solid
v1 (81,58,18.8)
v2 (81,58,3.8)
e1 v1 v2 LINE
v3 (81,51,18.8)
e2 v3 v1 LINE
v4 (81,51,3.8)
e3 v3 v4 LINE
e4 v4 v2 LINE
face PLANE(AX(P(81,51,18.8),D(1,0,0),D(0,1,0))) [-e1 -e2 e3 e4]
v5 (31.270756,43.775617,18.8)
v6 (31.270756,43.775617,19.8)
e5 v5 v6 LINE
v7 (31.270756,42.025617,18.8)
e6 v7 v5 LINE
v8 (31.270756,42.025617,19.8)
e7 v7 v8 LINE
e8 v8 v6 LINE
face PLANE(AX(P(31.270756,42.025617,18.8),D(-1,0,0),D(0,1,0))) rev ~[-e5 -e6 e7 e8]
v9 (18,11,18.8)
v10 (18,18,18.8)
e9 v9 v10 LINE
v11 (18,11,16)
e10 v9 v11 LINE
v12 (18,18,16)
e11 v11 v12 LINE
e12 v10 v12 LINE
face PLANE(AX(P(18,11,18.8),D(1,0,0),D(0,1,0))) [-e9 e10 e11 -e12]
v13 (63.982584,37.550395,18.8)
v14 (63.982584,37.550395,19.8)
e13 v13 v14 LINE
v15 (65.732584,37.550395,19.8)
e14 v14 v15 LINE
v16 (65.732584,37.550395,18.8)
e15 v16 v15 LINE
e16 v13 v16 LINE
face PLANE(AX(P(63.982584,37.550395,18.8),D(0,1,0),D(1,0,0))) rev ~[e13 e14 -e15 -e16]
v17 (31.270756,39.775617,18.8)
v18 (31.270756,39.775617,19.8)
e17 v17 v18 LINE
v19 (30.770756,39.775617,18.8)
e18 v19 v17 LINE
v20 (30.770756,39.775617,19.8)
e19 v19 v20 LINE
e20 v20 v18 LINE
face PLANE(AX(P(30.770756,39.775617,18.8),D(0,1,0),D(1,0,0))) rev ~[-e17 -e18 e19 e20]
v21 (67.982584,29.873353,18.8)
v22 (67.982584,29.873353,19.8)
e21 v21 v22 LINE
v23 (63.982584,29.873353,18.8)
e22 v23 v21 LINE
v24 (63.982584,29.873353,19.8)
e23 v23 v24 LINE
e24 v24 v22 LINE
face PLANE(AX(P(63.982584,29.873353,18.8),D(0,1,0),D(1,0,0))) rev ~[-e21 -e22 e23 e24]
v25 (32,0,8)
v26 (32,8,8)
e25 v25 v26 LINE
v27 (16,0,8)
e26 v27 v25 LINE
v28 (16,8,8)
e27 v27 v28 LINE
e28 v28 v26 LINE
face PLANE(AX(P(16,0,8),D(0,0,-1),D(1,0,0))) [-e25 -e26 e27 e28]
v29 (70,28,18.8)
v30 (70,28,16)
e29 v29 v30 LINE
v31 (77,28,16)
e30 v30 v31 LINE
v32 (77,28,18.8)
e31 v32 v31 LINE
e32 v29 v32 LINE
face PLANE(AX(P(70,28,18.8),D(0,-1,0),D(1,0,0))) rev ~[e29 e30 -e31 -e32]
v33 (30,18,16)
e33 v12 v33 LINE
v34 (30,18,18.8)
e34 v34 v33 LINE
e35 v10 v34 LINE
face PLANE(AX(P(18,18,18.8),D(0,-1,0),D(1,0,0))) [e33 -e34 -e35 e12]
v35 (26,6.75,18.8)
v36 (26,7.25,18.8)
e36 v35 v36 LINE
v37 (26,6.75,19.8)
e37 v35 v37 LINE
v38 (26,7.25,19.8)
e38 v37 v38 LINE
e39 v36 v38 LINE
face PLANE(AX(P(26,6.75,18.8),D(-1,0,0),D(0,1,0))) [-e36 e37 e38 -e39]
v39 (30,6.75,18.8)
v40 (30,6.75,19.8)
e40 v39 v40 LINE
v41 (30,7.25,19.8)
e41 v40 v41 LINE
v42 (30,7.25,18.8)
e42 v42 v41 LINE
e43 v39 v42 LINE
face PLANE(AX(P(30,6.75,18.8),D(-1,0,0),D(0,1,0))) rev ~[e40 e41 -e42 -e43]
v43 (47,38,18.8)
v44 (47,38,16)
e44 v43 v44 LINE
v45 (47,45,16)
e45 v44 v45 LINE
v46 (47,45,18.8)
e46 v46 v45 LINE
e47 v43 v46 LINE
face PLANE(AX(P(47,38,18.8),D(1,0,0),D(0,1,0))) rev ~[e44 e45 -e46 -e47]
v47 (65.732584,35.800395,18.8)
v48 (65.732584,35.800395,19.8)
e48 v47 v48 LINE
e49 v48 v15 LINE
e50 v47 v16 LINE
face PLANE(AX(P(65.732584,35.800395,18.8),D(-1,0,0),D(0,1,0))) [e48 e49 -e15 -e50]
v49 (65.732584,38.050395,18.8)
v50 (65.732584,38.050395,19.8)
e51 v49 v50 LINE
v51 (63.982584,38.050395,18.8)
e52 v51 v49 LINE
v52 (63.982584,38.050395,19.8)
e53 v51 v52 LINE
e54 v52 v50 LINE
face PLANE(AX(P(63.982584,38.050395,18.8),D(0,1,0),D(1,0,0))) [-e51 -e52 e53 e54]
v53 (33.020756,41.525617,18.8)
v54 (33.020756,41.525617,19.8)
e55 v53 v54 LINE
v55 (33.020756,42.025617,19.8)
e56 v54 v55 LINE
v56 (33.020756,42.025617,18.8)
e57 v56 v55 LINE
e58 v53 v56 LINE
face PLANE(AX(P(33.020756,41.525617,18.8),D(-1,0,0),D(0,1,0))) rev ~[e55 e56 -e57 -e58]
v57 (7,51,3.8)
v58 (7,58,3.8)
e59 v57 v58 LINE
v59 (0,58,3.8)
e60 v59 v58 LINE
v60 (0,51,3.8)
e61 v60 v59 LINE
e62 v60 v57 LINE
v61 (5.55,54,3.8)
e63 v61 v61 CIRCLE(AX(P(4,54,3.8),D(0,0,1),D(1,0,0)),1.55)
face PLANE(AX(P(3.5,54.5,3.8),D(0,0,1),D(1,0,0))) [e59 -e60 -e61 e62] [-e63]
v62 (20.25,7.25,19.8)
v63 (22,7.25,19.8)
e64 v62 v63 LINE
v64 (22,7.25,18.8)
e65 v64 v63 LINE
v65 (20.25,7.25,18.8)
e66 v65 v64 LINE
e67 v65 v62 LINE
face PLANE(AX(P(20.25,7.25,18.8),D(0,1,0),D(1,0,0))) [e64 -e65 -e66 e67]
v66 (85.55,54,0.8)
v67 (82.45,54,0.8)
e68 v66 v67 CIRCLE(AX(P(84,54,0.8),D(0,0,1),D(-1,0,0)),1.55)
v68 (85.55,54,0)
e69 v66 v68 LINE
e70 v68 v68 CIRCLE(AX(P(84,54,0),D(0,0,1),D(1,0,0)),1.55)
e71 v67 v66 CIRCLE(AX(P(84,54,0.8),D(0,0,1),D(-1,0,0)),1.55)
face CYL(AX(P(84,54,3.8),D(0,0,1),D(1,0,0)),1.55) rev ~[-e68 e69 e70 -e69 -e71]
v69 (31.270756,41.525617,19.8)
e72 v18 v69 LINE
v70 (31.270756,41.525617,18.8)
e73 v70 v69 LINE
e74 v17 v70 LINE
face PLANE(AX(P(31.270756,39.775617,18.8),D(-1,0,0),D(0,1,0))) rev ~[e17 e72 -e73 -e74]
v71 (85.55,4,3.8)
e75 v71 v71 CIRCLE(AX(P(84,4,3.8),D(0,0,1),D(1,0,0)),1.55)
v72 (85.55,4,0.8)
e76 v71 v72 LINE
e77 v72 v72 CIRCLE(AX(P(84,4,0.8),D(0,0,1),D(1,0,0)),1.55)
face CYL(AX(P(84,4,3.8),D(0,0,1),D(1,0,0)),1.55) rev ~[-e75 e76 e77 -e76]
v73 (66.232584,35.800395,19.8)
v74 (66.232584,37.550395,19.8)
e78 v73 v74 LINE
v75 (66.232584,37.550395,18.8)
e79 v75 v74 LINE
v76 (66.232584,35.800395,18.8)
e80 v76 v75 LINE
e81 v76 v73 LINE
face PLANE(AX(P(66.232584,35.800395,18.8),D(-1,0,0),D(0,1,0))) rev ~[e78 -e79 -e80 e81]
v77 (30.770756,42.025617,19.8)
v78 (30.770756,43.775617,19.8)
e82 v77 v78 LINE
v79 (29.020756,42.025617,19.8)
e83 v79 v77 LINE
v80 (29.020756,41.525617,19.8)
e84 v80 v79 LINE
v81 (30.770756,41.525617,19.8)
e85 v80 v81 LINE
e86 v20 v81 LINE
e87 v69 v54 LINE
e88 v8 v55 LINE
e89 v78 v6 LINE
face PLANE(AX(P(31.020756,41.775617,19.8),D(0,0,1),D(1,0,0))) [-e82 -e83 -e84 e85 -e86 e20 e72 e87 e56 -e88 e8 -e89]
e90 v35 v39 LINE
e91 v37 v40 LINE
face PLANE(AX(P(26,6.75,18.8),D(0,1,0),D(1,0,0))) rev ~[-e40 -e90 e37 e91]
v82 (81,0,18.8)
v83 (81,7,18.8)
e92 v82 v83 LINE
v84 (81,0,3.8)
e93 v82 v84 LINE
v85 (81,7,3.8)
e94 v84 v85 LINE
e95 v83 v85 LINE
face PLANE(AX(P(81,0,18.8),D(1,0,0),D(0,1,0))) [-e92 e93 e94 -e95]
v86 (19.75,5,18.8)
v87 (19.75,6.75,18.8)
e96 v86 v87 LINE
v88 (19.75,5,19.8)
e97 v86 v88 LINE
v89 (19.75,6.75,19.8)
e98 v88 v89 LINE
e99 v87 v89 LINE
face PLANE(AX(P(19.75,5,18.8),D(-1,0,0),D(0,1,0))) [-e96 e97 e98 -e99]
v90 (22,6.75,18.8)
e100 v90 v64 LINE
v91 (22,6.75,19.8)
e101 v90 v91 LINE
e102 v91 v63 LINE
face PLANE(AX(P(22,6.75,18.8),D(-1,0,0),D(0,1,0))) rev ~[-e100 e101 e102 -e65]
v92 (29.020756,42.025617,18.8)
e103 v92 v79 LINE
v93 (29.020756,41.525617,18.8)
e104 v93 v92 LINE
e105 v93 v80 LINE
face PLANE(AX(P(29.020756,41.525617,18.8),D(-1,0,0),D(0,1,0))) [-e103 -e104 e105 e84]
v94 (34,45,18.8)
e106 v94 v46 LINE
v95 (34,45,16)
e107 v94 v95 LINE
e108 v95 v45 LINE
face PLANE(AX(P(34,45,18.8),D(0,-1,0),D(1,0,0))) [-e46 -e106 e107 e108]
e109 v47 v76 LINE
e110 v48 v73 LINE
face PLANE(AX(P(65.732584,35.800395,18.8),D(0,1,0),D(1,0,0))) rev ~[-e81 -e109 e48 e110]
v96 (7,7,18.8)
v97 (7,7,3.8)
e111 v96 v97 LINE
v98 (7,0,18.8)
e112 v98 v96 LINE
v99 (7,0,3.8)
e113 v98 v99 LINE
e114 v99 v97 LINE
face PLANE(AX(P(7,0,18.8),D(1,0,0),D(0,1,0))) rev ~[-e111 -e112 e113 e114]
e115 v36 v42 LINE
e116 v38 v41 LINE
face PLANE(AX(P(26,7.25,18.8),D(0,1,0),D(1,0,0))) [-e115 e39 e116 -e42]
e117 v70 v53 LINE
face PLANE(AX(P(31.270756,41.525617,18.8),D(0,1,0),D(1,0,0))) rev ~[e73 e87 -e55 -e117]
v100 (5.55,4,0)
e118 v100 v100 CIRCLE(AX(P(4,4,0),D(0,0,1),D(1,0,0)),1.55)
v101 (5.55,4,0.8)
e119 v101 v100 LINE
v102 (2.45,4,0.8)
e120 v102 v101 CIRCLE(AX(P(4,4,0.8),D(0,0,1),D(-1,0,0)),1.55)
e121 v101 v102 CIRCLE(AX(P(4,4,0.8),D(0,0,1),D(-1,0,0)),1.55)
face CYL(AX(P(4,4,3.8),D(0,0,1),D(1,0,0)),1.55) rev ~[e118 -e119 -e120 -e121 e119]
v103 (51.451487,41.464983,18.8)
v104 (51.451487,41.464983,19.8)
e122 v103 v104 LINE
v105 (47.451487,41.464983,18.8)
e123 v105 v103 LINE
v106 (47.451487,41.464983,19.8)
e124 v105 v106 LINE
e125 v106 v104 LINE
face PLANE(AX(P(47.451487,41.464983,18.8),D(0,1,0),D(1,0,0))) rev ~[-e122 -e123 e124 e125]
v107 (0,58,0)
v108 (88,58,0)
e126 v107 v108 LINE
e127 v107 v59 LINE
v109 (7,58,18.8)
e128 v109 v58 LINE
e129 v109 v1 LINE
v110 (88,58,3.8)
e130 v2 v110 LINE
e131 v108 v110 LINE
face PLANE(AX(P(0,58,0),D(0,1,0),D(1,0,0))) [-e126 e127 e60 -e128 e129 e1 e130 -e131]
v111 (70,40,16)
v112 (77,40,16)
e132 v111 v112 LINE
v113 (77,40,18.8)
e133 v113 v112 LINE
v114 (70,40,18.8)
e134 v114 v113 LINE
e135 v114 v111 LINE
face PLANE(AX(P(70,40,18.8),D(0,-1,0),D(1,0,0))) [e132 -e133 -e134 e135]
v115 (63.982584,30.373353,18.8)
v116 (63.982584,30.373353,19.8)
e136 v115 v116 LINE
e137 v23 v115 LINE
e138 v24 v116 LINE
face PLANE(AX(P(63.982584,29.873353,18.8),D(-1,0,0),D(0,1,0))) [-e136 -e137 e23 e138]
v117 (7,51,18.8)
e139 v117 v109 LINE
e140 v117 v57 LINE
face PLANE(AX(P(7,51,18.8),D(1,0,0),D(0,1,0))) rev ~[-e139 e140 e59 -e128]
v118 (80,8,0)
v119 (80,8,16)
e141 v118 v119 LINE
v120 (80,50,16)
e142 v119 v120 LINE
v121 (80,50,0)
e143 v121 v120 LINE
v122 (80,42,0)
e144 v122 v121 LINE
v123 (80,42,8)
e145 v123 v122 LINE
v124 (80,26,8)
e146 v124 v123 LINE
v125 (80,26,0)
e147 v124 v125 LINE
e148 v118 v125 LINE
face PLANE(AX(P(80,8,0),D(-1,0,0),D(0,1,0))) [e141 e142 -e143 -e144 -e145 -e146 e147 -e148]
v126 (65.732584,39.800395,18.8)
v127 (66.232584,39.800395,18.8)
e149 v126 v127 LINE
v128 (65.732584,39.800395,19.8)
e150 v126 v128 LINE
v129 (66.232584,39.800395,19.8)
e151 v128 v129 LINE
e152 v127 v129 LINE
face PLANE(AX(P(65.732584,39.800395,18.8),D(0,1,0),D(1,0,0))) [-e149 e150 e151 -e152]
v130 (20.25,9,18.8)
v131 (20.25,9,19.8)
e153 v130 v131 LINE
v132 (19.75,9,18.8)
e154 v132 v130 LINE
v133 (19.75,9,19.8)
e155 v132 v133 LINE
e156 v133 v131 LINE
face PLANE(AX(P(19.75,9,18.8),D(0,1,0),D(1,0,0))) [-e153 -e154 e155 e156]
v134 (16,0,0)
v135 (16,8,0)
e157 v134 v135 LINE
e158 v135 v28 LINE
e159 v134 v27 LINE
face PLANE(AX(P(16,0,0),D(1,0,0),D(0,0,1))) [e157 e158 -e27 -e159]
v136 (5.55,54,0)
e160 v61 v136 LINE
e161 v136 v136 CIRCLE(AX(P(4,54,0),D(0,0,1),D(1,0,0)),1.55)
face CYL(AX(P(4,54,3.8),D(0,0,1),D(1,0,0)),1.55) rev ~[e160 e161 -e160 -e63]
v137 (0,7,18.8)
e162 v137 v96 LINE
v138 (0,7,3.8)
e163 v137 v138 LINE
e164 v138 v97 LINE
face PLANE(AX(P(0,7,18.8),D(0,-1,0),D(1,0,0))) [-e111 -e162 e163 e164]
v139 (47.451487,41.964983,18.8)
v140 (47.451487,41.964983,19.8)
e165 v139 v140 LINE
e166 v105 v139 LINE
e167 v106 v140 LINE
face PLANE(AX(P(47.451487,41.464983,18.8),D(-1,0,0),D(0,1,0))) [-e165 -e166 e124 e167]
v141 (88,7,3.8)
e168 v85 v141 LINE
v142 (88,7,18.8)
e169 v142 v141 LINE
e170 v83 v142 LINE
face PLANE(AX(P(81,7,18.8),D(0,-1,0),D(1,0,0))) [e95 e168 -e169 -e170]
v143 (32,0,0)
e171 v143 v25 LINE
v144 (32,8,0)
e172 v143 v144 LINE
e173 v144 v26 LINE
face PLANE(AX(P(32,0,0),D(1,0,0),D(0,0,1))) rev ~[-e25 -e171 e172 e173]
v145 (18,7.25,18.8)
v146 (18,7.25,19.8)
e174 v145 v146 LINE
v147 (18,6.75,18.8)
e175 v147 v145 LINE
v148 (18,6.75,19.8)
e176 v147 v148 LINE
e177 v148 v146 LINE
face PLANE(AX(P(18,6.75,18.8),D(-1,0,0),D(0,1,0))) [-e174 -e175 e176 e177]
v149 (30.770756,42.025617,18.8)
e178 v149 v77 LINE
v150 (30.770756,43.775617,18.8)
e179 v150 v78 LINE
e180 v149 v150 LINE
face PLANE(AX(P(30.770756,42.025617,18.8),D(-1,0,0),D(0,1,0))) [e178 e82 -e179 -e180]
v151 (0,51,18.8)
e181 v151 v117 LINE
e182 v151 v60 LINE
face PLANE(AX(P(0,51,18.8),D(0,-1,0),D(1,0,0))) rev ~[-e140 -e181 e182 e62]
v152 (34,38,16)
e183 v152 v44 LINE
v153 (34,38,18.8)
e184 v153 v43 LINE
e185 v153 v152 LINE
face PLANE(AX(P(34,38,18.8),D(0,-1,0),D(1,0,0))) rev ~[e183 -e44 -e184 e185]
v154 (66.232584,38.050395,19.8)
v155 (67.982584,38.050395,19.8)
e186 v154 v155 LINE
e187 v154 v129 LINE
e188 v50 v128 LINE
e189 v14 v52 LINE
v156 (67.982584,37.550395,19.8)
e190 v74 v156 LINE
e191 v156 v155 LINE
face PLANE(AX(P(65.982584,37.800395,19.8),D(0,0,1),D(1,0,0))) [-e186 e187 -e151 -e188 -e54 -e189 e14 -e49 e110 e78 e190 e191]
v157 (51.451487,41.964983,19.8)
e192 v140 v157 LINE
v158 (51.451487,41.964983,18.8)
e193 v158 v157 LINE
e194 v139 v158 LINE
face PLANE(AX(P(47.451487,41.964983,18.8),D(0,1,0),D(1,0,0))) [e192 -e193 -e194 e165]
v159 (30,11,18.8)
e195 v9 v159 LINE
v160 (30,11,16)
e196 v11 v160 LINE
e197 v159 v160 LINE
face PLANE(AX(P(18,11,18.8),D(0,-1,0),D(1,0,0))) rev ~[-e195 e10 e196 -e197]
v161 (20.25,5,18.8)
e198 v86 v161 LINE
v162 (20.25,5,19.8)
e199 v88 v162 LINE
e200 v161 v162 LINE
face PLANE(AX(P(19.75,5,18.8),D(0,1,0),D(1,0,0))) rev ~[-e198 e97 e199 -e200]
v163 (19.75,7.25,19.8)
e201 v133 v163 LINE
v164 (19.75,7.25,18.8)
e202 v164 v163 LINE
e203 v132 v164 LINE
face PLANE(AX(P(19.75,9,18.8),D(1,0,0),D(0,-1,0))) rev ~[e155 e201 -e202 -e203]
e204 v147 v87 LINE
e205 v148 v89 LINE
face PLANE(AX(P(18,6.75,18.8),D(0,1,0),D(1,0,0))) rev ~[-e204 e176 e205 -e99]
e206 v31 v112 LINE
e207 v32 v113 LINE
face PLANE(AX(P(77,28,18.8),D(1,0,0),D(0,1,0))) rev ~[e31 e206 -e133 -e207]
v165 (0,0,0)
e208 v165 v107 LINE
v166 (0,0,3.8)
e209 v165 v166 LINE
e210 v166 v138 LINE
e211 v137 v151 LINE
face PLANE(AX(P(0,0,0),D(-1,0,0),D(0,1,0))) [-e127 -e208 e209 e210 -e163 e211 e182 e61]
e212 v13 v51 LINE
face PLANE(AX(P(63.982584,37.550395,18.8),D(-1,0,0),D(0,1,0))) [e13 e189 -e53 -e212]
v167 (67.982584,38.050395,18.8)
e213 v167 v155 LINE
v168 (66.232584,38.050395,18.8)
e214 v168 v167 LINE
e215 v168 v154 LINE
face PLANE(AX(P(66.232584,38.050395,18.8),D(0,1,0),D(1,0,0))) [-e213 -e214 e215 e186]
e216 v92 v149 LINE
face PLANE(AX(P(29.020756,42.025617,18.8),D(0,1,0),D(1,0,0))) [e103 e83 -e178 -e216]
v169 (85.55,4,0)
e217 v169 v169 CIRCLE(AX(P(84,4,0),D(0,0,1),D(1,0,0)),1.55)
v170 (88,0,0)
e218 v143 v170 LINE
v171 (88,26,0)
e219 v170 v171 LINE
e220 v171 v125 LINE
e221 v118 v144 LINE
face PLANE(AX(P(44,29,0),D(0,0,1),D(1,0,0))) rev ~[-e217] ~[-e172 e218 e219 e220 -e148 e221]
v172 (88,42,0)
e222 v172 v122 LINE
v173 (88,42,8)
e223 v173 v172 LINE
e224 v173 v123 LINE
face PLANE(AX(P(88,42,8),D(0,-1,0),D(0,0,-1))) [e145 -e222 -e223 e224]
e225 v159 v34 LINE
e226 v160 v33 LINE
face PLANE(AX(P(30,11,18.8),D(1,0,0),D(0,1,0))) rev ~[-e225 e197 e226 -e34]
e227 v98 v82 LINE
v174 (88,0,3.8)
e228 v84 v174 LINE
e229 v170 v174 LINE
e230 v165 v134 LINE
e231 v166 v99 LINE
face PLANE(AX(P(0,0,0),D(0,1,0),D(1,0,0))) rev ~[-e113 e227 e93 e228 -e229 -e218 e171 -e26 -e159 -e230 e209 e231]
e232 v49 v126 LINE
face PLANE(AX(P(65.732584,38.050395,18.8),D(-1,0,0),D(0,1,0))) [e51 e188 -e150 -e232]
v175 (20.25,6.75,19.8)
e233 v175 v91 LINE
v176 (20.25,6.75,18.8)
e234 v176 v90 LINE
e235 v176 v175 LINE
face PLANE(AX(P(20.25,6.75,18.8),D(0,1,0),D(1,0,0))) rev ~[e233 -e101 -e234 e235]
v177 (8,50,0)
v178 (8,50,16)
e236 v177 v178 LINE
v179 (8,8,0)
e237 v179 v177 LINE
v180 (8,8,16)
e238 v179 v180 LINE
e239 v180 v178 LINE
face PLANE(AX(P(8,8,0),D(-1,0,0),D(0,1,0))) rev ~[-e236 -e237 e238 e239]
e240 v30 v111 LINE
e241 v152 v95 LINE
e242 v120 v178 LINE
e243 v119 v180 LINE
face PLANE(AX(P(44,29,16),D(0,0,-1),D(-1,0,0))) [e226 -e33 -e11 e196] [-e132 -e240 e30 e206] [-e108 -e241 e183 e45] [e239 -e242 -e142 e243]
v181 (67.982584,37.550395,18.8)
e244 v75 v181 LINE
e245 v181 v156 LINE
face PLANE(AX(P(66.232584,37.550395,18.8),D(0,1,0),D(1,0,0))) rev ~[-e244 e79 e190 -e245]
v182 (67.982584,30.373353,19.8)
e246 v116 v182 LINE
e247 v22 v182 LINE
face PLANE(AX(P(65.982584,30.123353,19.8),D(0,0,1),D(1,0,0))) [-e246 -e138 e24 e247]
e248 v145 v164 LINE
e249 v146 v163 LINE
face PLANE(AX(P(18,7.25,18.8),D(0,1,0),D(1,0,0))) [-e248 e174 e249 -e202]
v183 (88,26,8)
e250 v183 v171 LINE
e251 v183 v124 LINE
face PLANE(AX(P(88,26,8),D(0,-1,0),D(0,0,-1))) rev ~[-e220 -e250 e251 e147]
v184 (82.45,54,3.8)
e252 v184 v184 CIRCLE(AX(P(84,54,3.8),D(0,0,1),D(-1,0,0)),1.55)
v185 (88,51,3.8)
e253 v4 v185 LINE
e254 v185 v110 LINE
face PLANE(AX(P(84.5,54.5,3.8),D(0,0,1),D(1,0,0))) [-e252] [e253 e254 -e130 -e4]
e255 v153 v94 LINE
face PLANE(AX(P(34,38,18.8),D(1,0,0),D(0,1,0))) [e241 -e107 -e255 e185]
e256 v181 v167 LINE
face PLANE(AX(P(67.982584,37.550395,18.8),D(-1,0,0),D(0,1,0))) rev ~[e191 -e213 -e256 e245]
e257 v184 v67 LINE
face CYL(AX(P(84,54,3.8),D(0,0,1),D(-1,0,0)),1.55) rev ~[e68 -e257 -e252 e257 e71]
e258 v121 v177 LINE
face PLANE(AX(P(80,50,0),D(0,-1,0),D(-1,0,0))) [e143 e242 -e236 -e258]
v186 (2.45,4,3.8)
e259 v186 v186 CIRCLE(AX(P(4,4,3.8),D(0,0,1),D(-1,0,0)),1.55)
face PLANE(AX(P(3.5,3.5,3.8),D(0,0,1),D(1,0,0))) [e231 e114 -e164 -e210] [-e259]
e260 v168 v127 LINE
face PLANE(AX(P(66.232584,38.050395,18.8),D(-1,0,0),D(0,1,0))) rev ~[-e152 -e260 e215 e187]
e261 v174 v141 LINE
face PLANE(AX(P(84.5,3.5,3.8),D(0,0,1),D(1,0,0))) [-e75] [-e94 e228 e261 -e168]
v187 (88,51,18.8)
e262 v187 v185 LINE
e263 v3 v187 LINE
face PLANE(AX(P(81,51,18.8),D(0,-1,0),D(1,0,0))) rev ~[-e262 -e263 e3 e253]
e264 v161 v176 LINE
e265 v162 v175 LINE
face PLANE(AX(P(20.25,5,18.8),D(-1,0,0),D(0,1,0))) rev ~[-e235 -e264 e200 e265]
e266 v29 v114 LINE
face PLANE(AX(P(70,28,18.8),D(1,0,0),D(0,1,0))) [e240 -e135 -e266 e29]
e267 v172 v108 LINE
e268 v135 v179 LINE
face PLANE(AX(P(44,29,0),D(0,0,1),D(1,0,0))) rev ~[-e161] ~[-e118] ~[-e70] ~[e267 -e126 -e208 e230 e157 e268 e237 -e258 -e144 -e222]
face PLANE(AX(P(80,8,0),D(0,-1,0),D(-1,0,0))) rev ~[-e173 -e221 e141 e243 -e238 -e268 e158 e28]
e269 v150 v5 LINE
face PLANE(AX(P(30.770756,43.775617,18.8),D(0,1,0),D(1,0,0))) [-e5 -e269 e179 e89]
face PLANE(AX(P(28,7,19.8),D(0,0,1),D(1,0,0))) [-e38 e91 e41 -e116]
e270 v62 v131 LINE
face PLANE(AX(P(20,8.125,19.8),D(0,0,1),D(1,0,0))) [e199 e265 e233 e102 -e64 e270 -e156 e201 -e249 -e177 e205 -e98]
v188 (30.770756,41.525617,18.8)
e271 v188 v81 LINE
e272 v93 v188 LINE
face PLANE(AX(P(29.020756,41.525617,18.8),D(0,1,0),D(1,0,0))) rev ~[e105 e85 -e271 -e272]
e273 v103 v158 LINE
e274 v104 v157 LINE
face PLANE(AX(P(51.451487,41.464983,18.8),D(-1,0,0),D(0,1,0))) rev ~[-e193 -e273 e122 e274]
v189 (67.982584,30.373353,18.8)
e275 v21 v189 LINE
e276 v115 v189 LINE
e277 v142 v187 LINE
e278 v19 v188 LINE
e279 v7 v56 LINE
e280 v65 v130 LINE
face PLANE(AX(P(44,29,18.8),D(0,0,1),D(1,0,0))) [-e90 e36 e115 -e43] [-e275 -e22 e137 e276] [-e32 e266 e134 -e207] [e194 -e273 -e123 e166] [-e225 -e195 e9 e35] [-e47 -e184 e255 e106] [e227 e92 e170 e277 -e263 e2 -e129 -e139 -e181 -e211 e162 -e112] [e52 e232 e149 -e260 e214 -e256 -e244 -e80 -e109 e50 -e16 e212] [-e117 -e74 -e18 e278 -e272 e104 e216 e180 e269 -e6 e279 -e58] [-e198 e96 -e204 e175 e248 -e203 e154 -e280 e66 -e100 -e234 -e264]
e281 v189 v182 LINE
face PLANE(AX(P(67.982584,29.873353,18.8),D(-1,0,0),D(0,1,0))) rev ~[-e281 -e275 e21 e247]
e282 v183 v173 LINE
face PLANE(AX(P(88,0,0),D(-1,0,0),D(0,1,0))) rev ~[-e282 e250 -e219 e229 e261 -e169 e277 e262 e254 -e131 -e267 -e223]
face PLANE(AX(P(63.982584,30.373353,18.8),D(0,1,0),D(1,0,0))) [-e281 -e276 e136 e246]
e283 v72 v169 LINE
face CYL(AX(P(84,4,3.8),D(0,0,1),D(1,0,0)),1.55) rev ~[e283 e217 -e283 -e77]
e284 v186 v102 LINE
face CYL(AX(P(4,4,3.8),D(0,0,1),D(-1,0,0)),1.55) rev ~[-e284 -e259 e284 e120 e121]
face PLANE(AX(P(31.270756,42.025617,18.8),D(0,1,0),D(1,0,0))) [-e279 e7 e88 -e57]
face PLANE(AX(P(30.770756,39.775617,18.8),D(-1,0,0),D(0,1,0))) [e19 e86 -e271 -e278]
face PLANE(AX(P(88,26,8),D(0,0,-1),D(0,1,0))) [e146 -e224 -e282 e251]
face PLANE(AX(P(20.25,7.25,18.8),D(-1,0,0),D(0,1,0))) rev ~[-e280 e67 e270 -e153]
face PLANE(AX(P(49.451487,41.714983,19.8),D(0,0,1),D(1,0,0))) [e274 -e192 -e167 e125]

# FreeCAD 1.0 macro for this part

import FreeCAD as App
import Part
import Sketcher

V = App.Vector


def add_polygon(sketch, points):
    """Adds a closed chain of lines whose ends are joined by coincident constraints."""
    first, n = sketch.GeometryCount, len(points)
    for a, b in zip(points, points[1:] + points[:1]):
        sketch.addGeometry(Part.LineSegment(App.Vector(*a, 0), App.Vector(*b, 0)), False)
    for i in range(n):
        sketch.addConstraint(Sketcher.Constraint("Coincident", first + i, 2, first + (i + 1) % n, 1))

doc = App.newDocument("Part")
params = doc.addObject("Spreadsheet::Sheet", "Params")
for row, (alias, value) in enumerate([
    ("sketch1_width", "88 mm"),
    ("sketch1_height", "58 mm"),
    ("pad1_length", "18.8 mm"),
    ("sketch2_width", "7 mm"),
    ("pocket1_length", "15 mm"),
    ("sketch3_diameter", "3.1 mm"),
    ("pocket2_length", "3 mm"),
    ("sketch4_width", "72 mm"),
    ("sketch4_height", "42 mm"),
    ("pocket3_length", "16 mm"),
    ("sketch5_width", "16 mm"),
    ("sketch5_height", "8 mm"),
    ("pocket4_length", "8 mm"),
    ("sketch6_width", "13 mm"),
    ("sketch6_height", "7 mm"),
    ("sketch7_width", "7 mm"),
    ("sketch7_height", "12 mm"),
    ("sketch8_width", "12 mm"),
    ("sketch8_height", "7 mm"),
    ("sketch9_width", "16 mm"),
    ("sketch9_height", "8 mm"),
    ("sketch10_diameter", "3.1 mm"),
    ("pocket9_length", "3.8 mm"),
    ("sketch11_diameter", "3.1 mm"),
    ("pocket10_length", "3.8 mm"),
    ("sketch12_diameter", "3.1 mm"),
    ("pocket11_length", "3.8 mm"),
    ("sketch13_diameter", "3.1 mm"),
    ("pocket12_length", "3.8 mm"),
    ("sketch14_width", "4 mm"),
    ("sketch14_width2", "0.5 mm"),
    ("pad2_length", "1 mm"),
    ("sketch15_width", "4 mm"),
    ("sketch15_width2", "0.5 mm"),
    ("pad3_length", "1 mm"),
    ("sketch16_width", "4 mm"),
    ("sketch16_width2", "0.5 mm"),
    ("pad4_length", "1 mm"),
], start=1):
    params.set(f"A{row}", alias)
    params.set(f"B{row}", "=" + value)
    params.setAlias(f"B{row}", alias)

body = doc.addObject("PartDesign::Body", "Body")

sketch1 = body.newObject("Sketcher::SketchObject", "Sketch")
sketch1.AttachmentSupport = (doc.getObject("XY_Plane"), [""])
sketch1.MapMode = "FlatFace"
add_polygon(sketch1, [(0, 58), (0, 0), (88, 0), (88, 58)])
sketch1.addConstraint(Sketcher.Constraint("Vertical", 0))
sketch1.addConstraint(Sketcher.Constraint("Horizontal", 1))
sketch1.addConstraint(Sketcher.Constraint("Vertical", 2))
sketch1.addConstraint(Sketcher.Constraint("Horizontal", 3))
sketch1.addConstraint(Sketcher.Constraint("Coincident", 0, 2, -1, 1))
sketch1.addConstraint(Sketcher.Constraint("DistanceX", 1, 1, 1, 2, 88.0))
sketch1.addConstraint(Sketcher.Constraint("DistanceY", 0, 2, 0, 1, 58.0))
sketch1.setExpression("Constraints[9]", "Params.sketch1_width")
sketch1.setExpression("Constraints[10]", "Params.sketch1_height")
pad1 = body.newObject("PartDesign::Pad", "Pad")
pad1.Profile = sketch1
pad1.setExpression("Length", "Params.pad1_length")

sketch2 = body.newObject("Sketcher::SketchObject", "Sketch001")
sketch2.AttachmentSupport = (doc.getObject("XY_Plane"), [""])
sketch2.MapMode = "FlatFace"
sketch2.AttachmentOffset = App.Placement(V(0, 0, 18.8), App.Rotation())
add_polygon(sketch2, [(0, 58), (0, 51), (7, 51), (7, 58)])
add_polygon(sketch2, [(0, 7), (0, 0), (7, 0), (7, 7)])
add_polygon(sketch2, [(81, 7), (81, 0), (88, 0), (88, 7)])
add_polygon(sketch2, [(81, 58), (81, 51), (88, 51), (88, 58)])
sketch2.addConstraint(Sketcher.Constraint("Vertical", 0))
sketch2.addConstraint(Sketcher.Constraint("Horizontal", 1))
sketch2.addConstraint(Sketcher.Constraint("Vertical", 2))
sketch2.addConstraint(Sketcher.Constraint("Horizontal", 3))
sketch2.addConstraint(Sketcher.Constraint("Vertical", 4))
sketch2.addConstraint(Sketcher.Constraint("Horizontal", 5))
sketch2.addConstraint(Sketcher.Constraint("Vertical", 6))
sketch2.addConstraint(Sketcher.Constraint("Horizontal", 7))
sketch2.addConstraint(Sketcher.Constraint("Vertical", 8))
sketch2.addConstraint(Sketcher.Constraint("Horizontal", 9))
sketch2.addConstraint(Sketcher.Constraint("Vertical", 10))
sketch2.addConstraint(Sketcher.Constraint("Horizontal", 11))
sketch2.addConstraint(Sketcher.Constraint("Vertical", 12))
sketch2.addConstraint(Sketcher.Constraint("Horizontal", 13))
sketch2.addConstraint(Sketcher.Constraint("Vertical", 14))
sketch2.addConstraint(Sketcher.Constraint("Horizontal", 15))
sketch2.addConstraint(Sketcher.Constraint("Coincident", 4, 2, -1, 1))
sketch2.addConstraint(Sketcher.Constraint("PointOnObject", 0, 2, -2))
sketch2.addConstraint(Sketcher.Constraint("PointOnObject", 8, 2, -1))
sketch2.addConstraint(Sketcher.Constraint("Horizontal", 7, 2, 10, 2))
sketch2.addConstraint(Sketcher.Constraint("Horizontal", 1, 2, 12, 2))
sketch2.addConstraint(Sketcher.Constraint("Horizontal", 3, 2, 14, 2))
sketch2.addConstraint(Sketcher.Constraint("Vertical", 2, 2, 5, 2))
sketch2.addConstraint(Sketcher.Constraint("Vertical", 11, 2, 12, 2))
sketch2.addConstraint(Sketcher.Constraint("Vertical", 10, 2, 13, 2))
sketch2.addConstraint(Sketcher.Constraint("Equal", 7, 9))
sketch2.addConstraint(Sketcher.Constraint("Equal", 15, 0))
sketch2.addConstraint(Sketcher.Constraint("Equal", 2, 4))
sketch2.addConstraint(Sketcher.Constraint("DistanceX", 1, 1, 1, 2, 7.0))
sketch2.addConstraint(Sketcher.Constraint("DistanceY", -1, 1, 0, 2, 51.0))
sketch2.addConstraint(Sketcher.Constraint("DistanceX", -1, 1, 8, 2, 81.0))
sketch2.setExpression("Constraints[44]", "Params.sketch2_width")
pocket1 = body.newObject("PartDesign::Pocket", "Pocket")
pocket1.Profile = sketch2
pocket1.setExpression("Length", "Params.pocket1_length")

sketch3 = body.newObject("Sketcher::SketchObject", "Sketch002")
sketch3.AttachmentSupport = (doc.getObject("XY_Plane"), [""])
sketch3.MapMode = "FlatFace"
sketch3.AttachmentOffset = App.Placement(V(0, 0, 3.8), App.Rotation())
sketch3.addGeometry(Part.Circle(V(4, 54, 0), V(0, 0, 1), 1.6), False)
sketch3.addGeometry(Part.Circle(V(4, 4, 0), V(0, 0, 1), 1.6), False)
sketch3.addGeometry(Part.Circle(V(84, 4, 0), V(0, 0, 1), 1.6), False)
sketch3.addGeometry(Part.Circle(V(84, 54, 0), V(0, 0, 1), 1.6), False)
sketch3.addConstraint(Sketcher.Constraint("Equal", 0, 1))
sketch3.addConstraint(Sketcher.Constraint("Equal", 1, 2))
sketch3.addConstraint(Sketcher.Constraint("Equal", 2, 3))
sketch3.addConstraint(Sketcher.Constraint("Horizontal", 1, 3, 2, 3))
sketch3.addConstraint(Sketcher.Constraint("Horizontal", 0, 3, 3, 3))
sketch3.addConstraint(Sketcher.Constraint("Vertical", 0, 3, 1, 3))
sketch3.addConstraint(Sketcher.Constraint("Vertical", 2, 3, 3, 3))
sketch3.addConstraint(Sketcher.Constraint("Diameter", 0, 3.1))
sketch3.addConstraint(Sketcher.Constraint("DistanceX", -1, 1, 0, 3, 4.0))
sketch3.addConstraint(Sketcher.Constraint("DistanceY", -1, 1, 0, 3, 54.0))
sketch3.addConstraint(Sketcher.Constraint("DistanceY", -1, 1, 1, 3, 4.0))
sketch3.addConstraint(Sketcher.Constraint("DistanceX", -1, 1, 2, 3, 84.0))
sketch3.setExpression("Constraints[7]", "Params.sketch3_diameter")
pocket2 = body.newObject("PartDesign::Pocket", "Pocket001")
pocket2.Profile = sketch3
pocket2.setExpression("Length", "Params.pocket2_length")

sketch4 = body.newObject("Sketcher::SketchObject", "Sketch003")
sketch4.AttachmentSupport = (doc.getObject("XY_Plane"), [""])
sketch4.MapMode = "FlatFace"
add_polygon(sketch4, [(80, 50), (80, 8), (8, 8), (8, 50)])
sketch4.addConstraint(Sketcher.Constraint("Vertical", 0))
sketch4.addConstraint(Sketcher.Constraint("Horizontal", 1))
sketch4.addConstraint(Sketcher.Constraint("Vertical", 2))
sketch4.addConstraint(Sketcher.Constraint("Horizontal", 3))
sketch4.addConstraint(Sketcher.Constraint("DistanceX", 1, 2, 1, 1, 72.0))
sketch4.addConstraint(Sketcher.Constraint("DistanceY", 0, 2, 0, 1, 42.0))
sketch4.addConstraint(Sketcher.Constraint("DistanceX", -1, 1, 0, 2, 80.0))
sketch4.addConstraint(Sketcher.Constraint("DistanceY", -1, 1, 0, 2, 8.0))
sketch4.setExpression("Constraints[8]", "Params.sketch4_width")
sketch4.setExpression("Constraints[9]", "Params.sketch4_height")
pocket3 = body.newObject("PartDesign::Pocket", "Pocket002")
pocket3.Profile = sketch4
pocket3.setExpression("Length", "Params.pocket3_length")
pocket3.Reversed = True

sketch5 = body.newObject("Sketcher::SketchObject", "Sketch004")
sketch5.AttachmentSupport = (doc.getObject("XZ_Plane"), [""])
sketch5.MapMode = "FlatFace"
add_polygon(sketch5, [(16, 8), (16, 0), (32, 0), (32, 8)])
sketch5.addConstraint(Sketcher.Constraint("Vertical", 0))
sketch5.addConstraint(Sketcher.Constraint("Horizontal", 1))
sketch5.addConstraint(Sketcher.Constraint("Vertical", 2))
sketch5.addConstraint(Sketcher.Constraint("Horizontal", 3))
sketch5.addConstraint(Sketcher.Constraint("PointOnObject", 0, 2, -1))
sketch5.addConstraint(Sketcher.Constraint("DistanceX", 1, 1, 1, 2, 16.0))
sketch5.addConstraint(Sketcher.Constraint("DistanceY", 0, 2, 0, 1, 8.0))
sketch5.addConstraint(Sketcher.Constraint("DistanceX", -1, 1, 0, 2, 16.0))
sketch5.setExpression("Constraints[9]", "Params.sketch5_width")
sketch5.setExpression("Constraints[10]", "Params.sketch5_height")
pocket4 = body.newObject("PartDesign::Pocket", "Pocket003")
pocket4.Profile = sketch5
pocket4.setExpression("Length", "Params.pocket4_length")

sketch6 = body.newObject("Sketcher::SketchObject", "Sketch005")
sketch6.AttachmentSupport = (doc.getObject("XY_Plane"), [""])
sketch6.MapMode = "FlatFace"
sketch6.AttachmentOffset = App.Placement(V(0, 0, 18.8), App.Rotation())
add_polygon(sketch6, [(34, 45), (34, 38), (47, 38), (47, 45)])
sketch6.addConstraint(Sketcher.Constraint("Vertical", 0))
sketch6.addConstraint(Sketcher.Constraint("Horizontal", 1))
sketch6.addConstraint(Sketcher.Constraint("Vertical", 2))
sketch6.addConstraint(Sketcher.Constraint("Horizontal", 3))
sketch6.addConstraint(Sketcher.Constraint("DistanceX", 1, 1, 1, 2, 13.0))
sketch6.addConstraint(Sketcher.Constraint("DistanceY", 0, 2, 0, 1, 7.0))
sketch6.addConstraint(Sketcher.Constraint("DistanceX", -1, 1, 0, 2, 34.0))
sketch6.addConstraint(Sketcher.Constraint("DistanceY", -1, 1, 0, 2, 38.0))
sketch6.setExpression("Constraints[8]", "Params.sketch6_width")
sketch6.setExpression("Constraints[9]", "Params.sketch6_height")
pocket5 = body.newObject("PartDesign::Pocket", "Pocket004")
pocket5.Profile = sketch6
pocket5.Type = "UpToFirst"

sketch7 = body.newObject("Sketcher::SketchObject", "Sketch006")
sketch7.AttachmentSupport = (doc.getObject("XY_Plane"), [""])
sketch7.MapMode = "FlatFace"
sketch7.AttachmentOffset = App.Placement(V(0, 0, 18.8), App.Rotation())
add_polygon(sketch7, [(70, 40), (70, 28), (77, 28), (77, 40)])
sketch7.addConstraint(Sketcher.Constraint("Vertical", 0))
sketch7.addConstraint(Sketcher.Constraint("Horizontal", 1))
sketch7.addConstraint(Sketcher.Constraint("Vertical", 2))
sketch7.addConstraint(Sketcher.Constraint("Horizontal", 3))
sketch7.addConstraint(Sketcher.Constraint("DistanceX", 1, 1, 1, 2, 7.0))
sketch7.addConstraint(Sketcher.Constraint("DistanceY", 0, 2, 0, 1, 12.0))
sketch7.addConstraint(Sketcher.Constraint("DistanceX", -1, 1, 0, 2, 70.0))
sketch7.addConstraint(Sketcher.Constraint("DistanceY", -1, 1, 0, 2, 28.0))
sketch7.setExpression("Constraints[8]", "Params.sketch7_width")
sketch7.setExpression("Constraints[9]", "Params.sketch7_height")
pocket6 = body.newObject("PartDesign::Pocket", "Pocket005")
pocket6.Profile = sketch7
pocket6.Type = "UpToFirst"

sketch8 = body.newObject("Sketcher::SketchObject", "Sketch007")
sketch8.AttachmentSupport = (doc.getObject("XY_Plane"), [""])
sketch8.MapMode = "FlatFace"
sketch8.AttachmentOffset = App.Placement(V(0, 0, 18.8), App.Rotation())
add_polygon(sketch8, [(18, 18), (18, 11), (30, 11), (30, 18)])
sketch8.addConstraint(Sketcher.Constraint("Vertical", 0))
sketch8.addConstraint(Sketcher.Constraint("Horizontal", 1))
sketch8.addConstraint(Sketcher.Constraint("Vertical", 2))
sketch8.addConstraint(Sketcher.Constraint("Horizontal", 3))
sketch8.addConstraint(Sketcher.Constraint("DistanceX", 1, 1, 1, 2, 12.0))
sketch8.addConstraint(Sketcher.Constraint("DistanceY", 0, 2, 0, 1, 7.0))
sketch8.addConstraint(Sketcher.Constraint("DistanceX", -1, 1, 0, 2, 18.0))
sketch8.addConstraint(Sketcher.Constraint("DistanceY", -1, 1, 0, 2, 11.0))
sketch8.setExpression("Constraints[8]", "Params.sketch8_width")
sketch8.setExpression("Constraints[9]", "Params.sketch8_height")
pocket7 = body.newObject("PartDesign::Pocket", "Pocket006")
pocket7.Profile = sketch8
pocket7.Type = "UpToFirst"

sketch9 = body.newObject("Sketcher::SketchObject", "Sketch008")
sketch9.AttachmentSupport = (doc.getObject("YZ_Plane"), [""])
sketch9.MapMode = "FlatFace"
sketch9.AttachmentOffset = App.Placement(V(0, 0, 88), App.Rotation())
add_polygon(sketch9, [(42, 8), (26, 8), (26, 0), (42, 0)])
sketch9.addConstraint(Sketcher.Constraint("Horizontal", 0))
sketch9.addConstraint(Sketcher.Constraint("Vertical", 1))
sketch9.addConstraint(Sketcher.Constraint("Horizontal", 2))
sketch9.addConstraint(Sketcher.Constraint("Vertical", 3))
sketch9.addConstraint(Sketcher.Constraint("PointOnObject", 1, 2, -1))
sketch9.addConstraint(Sketcher.Constraint("DistanceX", 0, 2, 0, 1, 16.0))
sketch9.addConstraint(Sketcher.Constraint("DistanceY", 1, 2, 1, 1, 8.0))
sketch9.addConstraint(Sketcher.Constraint("DistanceX", -1, 1, 0, 2, 26.0))
sketch9.setExpression("Constraints[9]", "Params.sketch9_width")
sketch9.setExpression("Constraints[10]", "Params.sketch9_height")
pocket8 = body.newObject("PartDesign::Pocket", "Pocket007")
pocket8.Profile = sketch9
pocket8.Type = "UpToFirst"

sketch10 = body.newObject("Sketcher::SketchObject", "Sketch009")
sketch10.AttachmentSupport = (doc.getObject("XY_Plane"), [""])
sketch10.MapMode = "FlatFace"
sketch10.AttachmentOffset = App.Placement(V(0, 0, 3.8), App.Rotation())
sketch10.addGeometry(Part.Circle(V(4, 54, 0), V(0, 0, 1), 1.6), False)
sketch10.addConstraint(Sketcher.Constraint("Diameter", 0, 3.1))
sketch10.addConstraint(Sketcher.Constraint("DistanceX", -1, 1, 0, 3, 4.0))
sketch10.addConstraint(Sketcher.Constraint("DistanceY", -1, 1, 0, 3, 54.0))
sketch10.setExpression("Constraints[0]", "Params.sketch10_diameter")
pocket9 = body.newObject("PartDesign::Pocket", "Pocket008")
pocket9.Profile = sketch10
pocket9.setExpression("Length", "Params.pocket9_length")

sketch11 = body.newObject("Sketcher::SketchObject", "Sketch010")
sketch11.AttachmentSupport = (doc.getObject("XY_Plane"), [""])
sketch11.MapMode = "FlatFace"
sketch11.AttachmentOffset = App.Placement(V(0, 0, 3.8), App.Rotation())
sketch11.addGeometry(Part.Circle(V(4, 4, 0), V(0, 0, 1), 1.6), False)
sketch11.addConstraint(Sketcher.Constraint("Diameter", 0, 3.1))
sketch11.addConstraint(Sketcher.Constraint("DistanceX", -1, 1, 0, 3, 4.0))
sketch11.addConstraint(Sketcher.Constraint("DistanceY", -1, 1, 0, 3, 4.0))
sketch11.setExpression("Constraints[0]", "Params.sketch11_diameter")
pocket10 = body.newObject("PartDesign::Pocket", "Pocket009")
pocket10.Profile = sketch11
pocket10.setExpression("Length", "Params.pocket10_length")

sketch12 = body.newObject("Sketcher::SketchObject", "Sketch011")
sketch12.AttachmentSupport = (doc.getObject("XY_Plane"), [""])
sketch12.MapMode = "FlatFace"
sketch12.AttachmentOffset = App.Placement(V(0, 0, 3.8), App.Rotation())
sketch12.addGeometry(Part.Circle(V(84, 4, 0), V(0, 0, 1), 1.6), False)
sketch12.addConstraint(Sketcher.Constraint("Diameter", 0, 3.1))
sketch12.addConstraint(Sketcher.Constraint("DistanceX", -1, 1, 0, 3, 84.0))
sketch12.addConstraint(Sketcher.Constraint("DistanceY", -1, 1, 0, 3, 4.0))
sketch12.setExpression("Constraints[0]", "Params.sketch12_diameter")
pocket11 = body.newObject("PartDesign::Pocket", "Pocket010")
pocket11.Profile = sketch12
pocket11.setExpression("Length", "Params.pocket11_length")

sketch13 = body.newObject("Sketcher::SketchObject", "Sketch012")
sketch13.AttachmentSupport = (doc.getObject("XY_Plane"), [""])
sketch13.MapMode = "FlatFace"
sketch13.AttachmentOffset = App.Placement(V(0, 0, 3.8), App.Rotation())
sketch13.addGeometry(Part.Circle(V(84, 54, 0), V(0, 0, 1), 1.6), False)
sketch13.addConstraint(Sketcher.Constraint("Diameter", 0, 3.1))
sketch13.addConstraint(Sketcher.Constraint("DistanceX", -1, 1, 0, 3, 84.0))
sketch13.addConstraint(Sketcher.Constraint("DistanceY", -1, 1, 0, 3, 54.0))
sketch13.setExpression("Constraints[0]", "Params.sketch13_diameter")
pocket12 = body.newObject("PartDesign::Pocket", "Pocket011")
pocket12.Profile = sketch13
pocket12.setExpression("Length", "Params.pocket12_length")

sketch14 = body.newObject("Sketcher::SketchObject", "Sketch013")
sketch14.AttachmentSupport = (doc.getObject("XY_Plane"), [""])
sketch14.MapMode = "FlatFace"
sketch14.AttachmentOffset = App.Placement(V(0, 0, 18.8), App.Rotation())
add_polygon(sketch14, [(19.8, 9), (19.8, 7.2), (18, 7.2), (18, 6.8), (19.8, 6.8), (19.8, 5), (20.2, 5), (20.2, 6.8), (22, 6.8), (22, 7.2), (20.2, 7.2), (20.2, 9)])
add_polygon(sketch14, [(26, 7.2), (26, 6.8), (30, 6.8), (30, 7.2)])
sketch14.addConstraint(Sketcher.Constraint("Vertical", 0))
sketch14.addConstraint(Sketcher.Constraint("Horizontal", 1))
sketch14.addConstraint(Sketcher.Constraint("Vertical", 2))
sketch14.addConstraint(Sketcher.Constraint("Horizontal", 3))
sketch14.addConstraint(Sketcher.Constraint("Vertical", 4))
sketch14.addConstraint(Sketcher.Constraint("Horizontal", 5))
sketch14.addConstraint(Sketcher.Constraint("Vertical", 6))
sketch14.addConstraint(Sketcher.Constraint("Horizontal", 7))
sketch14.addConstraint(Sketcher.Constraint("Vertical", 8))
sketch14.addConstraint(Sketcher.Constraint("Horizontal", 9))
sketch14.addConstraint(Sketcher.Constraint("Vertical", 10))
sketch14.addConstraint(Sketcher.Constraint("Horizontal", 11))
sketch14.addConstraint(Sketcher.Constraint("Vertical", 12))
sketch14.addConstraint(Sketcher.Constraint("Horizontal", 13))
sketch14.addConstraint(Sketcher.Constraint("Vertical", 14))
sketch14.addConstraint(Sketcher.Constraint("Horizontal", 15))
sketch14.addConstraint(Sketcher.Constraint("Horizontal", 3, 2, 6, 2))
sketch14.addConstraint(Sketcher.Constraint("Horizontal", 1, 2, 8, 2))
sketch14.addConstraint(Sketcher.Constraint("Horizontal", 7, 2, 12, 2))
sketch14.addConstraint(Sketcher.Constraint("Horizontal", 9, 2, 14, 2))
sketch14.addConstraint(Sketcher.Constraint("Vertical", 0, 2, 3, 2))
sketch14.addConstraint(Sketcher.Constraint("Vertical", 6, 2, 9, 2))
sketch14.addConstraint(Sketcher.Constraint("Equal", 3, 7))
sketch14.addConstraint(Sketcher.Constraint("Equal", 9, 0))
sketch14.addConstraint(Sketcher.Constraint("Equal", 11, 2))
sketch14.addConstraint(Sketcher.Constraint("Equal", 0, 4))
sketch14.addConstraint(Sketcher.Constraint("DistanceX", 13, 1, 13, 2, 4.0))
sketch14.addConstraint(Sketcher.Constraint("DistanceX", 5, 1, 5, 2, 0.5))
sketch14.addConstraint(Sketcher.Constraint("DistanceX", -1, 1, 1, 2, 18.0))
sketch14.addConstraint(Sketcher.Constraint("DistanceY", -1, 1, 4, 2, 5.0))
sketch14.addConstraint(Sketcher.Constraint("DistanceX", -1, 1, 7, 2, 22.0))
sketch14.addConstraint(Sketcher.Constraint("DistanceX", -1, 1, 12, 2, 26.0))
sketch14.setExpression("Constraints[42]", "Params.sketch14_width")
sketch14.setExpression("Constraints[43]", "Params.sketch14_width2")
pad2 = body.newObject("PartDesign::Pad", "Pad001")
pad2.Profile = sketch14
pad2.setExpression("Length", "Params.pad2_length")

sketch15 = body.newObject("Sketcher::SketchObject", "Sketch014")
sketch15.AttachmentSupport = (doc.getObject("XY_Plane"), [""])
sketch15.MapMode = "FlatFace"
sketch15.AttachmentOffset = App.Placement(V(0, 0, 18.8), App.Rotation())
add_polygon(sketch15, [(64, 38.1), (64, 37.6), (65.7, 37.6), (65.7, 35.8), (66.2, 35.8), (66.2, 37.6), (68, 37.6), (68, 38.1), (66.2, 38.1), (66.2, 39.8), (65.7, 39.8), (65.7, 38.1)])
add_polygon(sketch15, [(64, 30.4), (64, 29.9), (68, 29.9), (68, 30.4)])
sketch15.addConstraint(Sketcher.Constraint("Vertical", 0))
sketch15.addConstraint(Sketcher.Constraint("Horizontal", 1))
sketch15.addConstraint(Sketcher.Constraint("Vertical", 2))
sketch15.addConstraint(Sketcher.Constraint("Horizontal", 3))
sketch15.addConstraint(Sketcher.Constraint("Vertical", 4))
sketch15.addConstraint(Sketcher.Constraint("Horizontal", 5))
sketch15.addConstraint(Sketcher.Constraint("Vertical", 6))
sketch15.addConstraint(Sketcher.Constraint("Horizontal", 7))
sketch15.addConstraint(Sketcher.Constraint("Vertical", 8))
sketch15.addConstraint(Sketcher.Constraint("Horizontal", 9))
sketch15.addConstraint(Sketcher.Constraint("Vertical", 10))
sketch15.addConstraint(Sketcher.Constraint("Horizontal", 11))
sketch15.addConstraint(Sketcher.Constraint("Vertical", 12))
sketch15.addConstraint(Sketcher.Constraint("Horizontal", 13))
sketch15.addConstraint(Sketcher.Constraint("Vertical", 14))
sketch15.addConstraint(Sketcher.Constraint("Horizontal", 15))
sketch15.addConstraint(Sketcher.Constraint("Horizontal", 1, 2, 4, 2))
sketch15.addConstraint(Sketcher.Constraint("Horizontal", 7, 2, 10, 2))
sketch15.addConstraint(Sketcher.Constraint("Vertical", 4, 2, 7, 2))
sketch15.addConstraint(Sketcher.Constraint("Vertical", 2, 2, 9, 2))
sketch15.addConstraint(Sketcher.Constraint("Vertical", 11, 2, 12, 2))
sketch15.addConstraint(Sketcher.Constraint("Vertical", 6, 2, 13, 2))
sketch15.addConstraint(Sketcher.Constraint("Equal", 1, 5))
sketch15.addConstraint(Sketcher.Constraint("Equal", 9, 0))
sketch15.addConstraint(Sketcher.Constraint("Equal", 11, 2))
sketch15.addConstraint(Sketcher.Constraint("Equal", 4, 8))
sketch15.addConstraint(Sketcher.Constraint("Equal", 6, 12))
sketch15.addConstraint(Sketcher.Constraint("DistanceX", 13, 1, 13, 2, 4.0))
sketch15.addConstraint(Sketcher.Constraint("DistanceX", 3, 1, 3, 2, 0.5))
sketch15.addConstraint(Sketcher.Constraint("DistanceX", -1, 1, 0, 2, 63.982584))
sketch15.addConstraint(Sketcher.Constraint("DistanceY", -1, 1, 0, 2, 37.550395))
sketch15.addConstraint(Sketcher.Constraint("DistanceY", -1, 1, 12, 2, 29.873353))
sketch15.setExpression("Constraints[43]", "Params.sketch15_width")
sketch15.setExpression("Constraints[44]", "Params.sketch15_width2")
pad3 = body.newObject("PartDesign::Pad", "Pad002")
pad3.Profile = sketch15
pad3.setExpression("Length", "Params.pad3_length")

sketch16 = body.newObject("Sketcher::SketchObject", "Sketch015")
sketch16.AttachmentSupport = (doc.getObject("XY_Plane"), [""])
sketch16.MapMode = "FlatFace"
sketch16.AttachmentOffset = App.Placement(V(0, 0, 18.8), App.Rotation())
add_polygon(sketch16, [(29, 42), (29, 41.5), (30.8, 41.5), (30.8, 39.8), (31.3, 39.8), (31.3, 41.5), (33, 41.5), (33, 42), (31.3, 42), (31.3, 43.8), (30.8, 43.8), (30.8, 42)])
add_polygon(sketch16, [(47.5, 42), (47.5, 41.5), (51.5, 41.5), (51.5, 42)])
sketch16.addConstraint(Sketcher.Constraint("Vertical", 0))
sketch16.addConstraint(Sketcher.Constraint("Horizontal", 1))
sketch16.addConstraint(Sketcher.Constraint("Vertical", 2))
sketch16.addConstraint(Sketcher.Constraint("Horizontal", 3))
sketch16.addConstraint(Sketcher.Constraint("Vertical", 4))
sketch16.addConstraint(Sketcher.Constraint("Horizontal", 5))
sketch16.addConstraint(Sketcher.Constraint("Vertical", 6))
sketch16.addConstraint(Sketcher.Constraint("Horizontal", 7))
sketch16.addConstraint(Sketcher.Constraint("Vertical", 8))
sketch16.addConstraint(Sketcher.Constraint("Horizontal", 9))
sketch16.addConstraint(Sketcher.Constraint("Vertical", 10))
sketch16.addConstraint(Sketcher.Constraint("Horizontal", 11))
sketch16.addConstraint(Sketcher.Constraint("Vertical", 12))
sketch16.addConstraint(Sketcher.Constraint("Horizontal", 13))
sketch16.addConstraint(Sketcher.Constraint("Vertical", 14))
sketch16.addConstraint(Sketcher.Constraint("Horizontal", 15))
sketch16.addConstraint(Sketcher.Constraint("Horizontal", 1, 2, 4, 2))
sketch16.addConstraint(Sketcher.Constraint("Horizontal", 7, 2, 10, 2))
sketch16.addConstraint(Sketcher.Constraint("Vertical", 4, 2, 7, 2))
sketch16.addConstraint(Sketcher.Constraint("Vertical", 2, 2, 9, 2))
sketch16.addConstraint(Sketcher.Constraint("Equal", 1, 5))
sketch16.addConstraint(Sketcher.Constraint("Equal", 9, 0))
sketch16.addConstraint(Sketcher.Constraint("Equal", 11, 2))
sketch16.addConstraint(Sketcher.Constraint("Equal", 4, 8))
sketch16.addConstraint(Sketcher.Constraint("Equal", 6, 12))
sketch16.addConstraint(Sketcher.Constraint("DistanceX", 13, 1, 13, 2, 4.0))
sketch16.addConstraint(Sketcher.Constraint("DistanceX", 3, 1, 3, 2, 0.5))
sketch16.addConstraint(Sketcher.Constraint("DistanceX", 0, 2, 5, 2, 4.0))
sketch16.addConstraint(Sketcher.Constraint("DistanceX", 5, 2, 12, 2, 14.430731))
sketch16.addConstraint(Sketcher.Constraint("DistanceX", -1, 1, 0, 2, 29.020756))
sketch16.addConstraint(Sketcher.Constraint("DistanceY", -1, 1, 0, 2, 41.525617))
sketch16.addConstraint(Sketcher.Constraint("DistanceY", -1, 1, 12, 2, 41.464983))
sketch16.setExpression("Constraints[41]", "Params.sketch16_width")
sketch16.setExpression("Constraints[42]", "Params.sketch16_width2")
pad4 = body.newObject("PartDesign::Pad", "Pad003")
pad4.Profile = sketch16
pad4.setExpression("Length", "Params.pad4_length")

doc.recompute()
